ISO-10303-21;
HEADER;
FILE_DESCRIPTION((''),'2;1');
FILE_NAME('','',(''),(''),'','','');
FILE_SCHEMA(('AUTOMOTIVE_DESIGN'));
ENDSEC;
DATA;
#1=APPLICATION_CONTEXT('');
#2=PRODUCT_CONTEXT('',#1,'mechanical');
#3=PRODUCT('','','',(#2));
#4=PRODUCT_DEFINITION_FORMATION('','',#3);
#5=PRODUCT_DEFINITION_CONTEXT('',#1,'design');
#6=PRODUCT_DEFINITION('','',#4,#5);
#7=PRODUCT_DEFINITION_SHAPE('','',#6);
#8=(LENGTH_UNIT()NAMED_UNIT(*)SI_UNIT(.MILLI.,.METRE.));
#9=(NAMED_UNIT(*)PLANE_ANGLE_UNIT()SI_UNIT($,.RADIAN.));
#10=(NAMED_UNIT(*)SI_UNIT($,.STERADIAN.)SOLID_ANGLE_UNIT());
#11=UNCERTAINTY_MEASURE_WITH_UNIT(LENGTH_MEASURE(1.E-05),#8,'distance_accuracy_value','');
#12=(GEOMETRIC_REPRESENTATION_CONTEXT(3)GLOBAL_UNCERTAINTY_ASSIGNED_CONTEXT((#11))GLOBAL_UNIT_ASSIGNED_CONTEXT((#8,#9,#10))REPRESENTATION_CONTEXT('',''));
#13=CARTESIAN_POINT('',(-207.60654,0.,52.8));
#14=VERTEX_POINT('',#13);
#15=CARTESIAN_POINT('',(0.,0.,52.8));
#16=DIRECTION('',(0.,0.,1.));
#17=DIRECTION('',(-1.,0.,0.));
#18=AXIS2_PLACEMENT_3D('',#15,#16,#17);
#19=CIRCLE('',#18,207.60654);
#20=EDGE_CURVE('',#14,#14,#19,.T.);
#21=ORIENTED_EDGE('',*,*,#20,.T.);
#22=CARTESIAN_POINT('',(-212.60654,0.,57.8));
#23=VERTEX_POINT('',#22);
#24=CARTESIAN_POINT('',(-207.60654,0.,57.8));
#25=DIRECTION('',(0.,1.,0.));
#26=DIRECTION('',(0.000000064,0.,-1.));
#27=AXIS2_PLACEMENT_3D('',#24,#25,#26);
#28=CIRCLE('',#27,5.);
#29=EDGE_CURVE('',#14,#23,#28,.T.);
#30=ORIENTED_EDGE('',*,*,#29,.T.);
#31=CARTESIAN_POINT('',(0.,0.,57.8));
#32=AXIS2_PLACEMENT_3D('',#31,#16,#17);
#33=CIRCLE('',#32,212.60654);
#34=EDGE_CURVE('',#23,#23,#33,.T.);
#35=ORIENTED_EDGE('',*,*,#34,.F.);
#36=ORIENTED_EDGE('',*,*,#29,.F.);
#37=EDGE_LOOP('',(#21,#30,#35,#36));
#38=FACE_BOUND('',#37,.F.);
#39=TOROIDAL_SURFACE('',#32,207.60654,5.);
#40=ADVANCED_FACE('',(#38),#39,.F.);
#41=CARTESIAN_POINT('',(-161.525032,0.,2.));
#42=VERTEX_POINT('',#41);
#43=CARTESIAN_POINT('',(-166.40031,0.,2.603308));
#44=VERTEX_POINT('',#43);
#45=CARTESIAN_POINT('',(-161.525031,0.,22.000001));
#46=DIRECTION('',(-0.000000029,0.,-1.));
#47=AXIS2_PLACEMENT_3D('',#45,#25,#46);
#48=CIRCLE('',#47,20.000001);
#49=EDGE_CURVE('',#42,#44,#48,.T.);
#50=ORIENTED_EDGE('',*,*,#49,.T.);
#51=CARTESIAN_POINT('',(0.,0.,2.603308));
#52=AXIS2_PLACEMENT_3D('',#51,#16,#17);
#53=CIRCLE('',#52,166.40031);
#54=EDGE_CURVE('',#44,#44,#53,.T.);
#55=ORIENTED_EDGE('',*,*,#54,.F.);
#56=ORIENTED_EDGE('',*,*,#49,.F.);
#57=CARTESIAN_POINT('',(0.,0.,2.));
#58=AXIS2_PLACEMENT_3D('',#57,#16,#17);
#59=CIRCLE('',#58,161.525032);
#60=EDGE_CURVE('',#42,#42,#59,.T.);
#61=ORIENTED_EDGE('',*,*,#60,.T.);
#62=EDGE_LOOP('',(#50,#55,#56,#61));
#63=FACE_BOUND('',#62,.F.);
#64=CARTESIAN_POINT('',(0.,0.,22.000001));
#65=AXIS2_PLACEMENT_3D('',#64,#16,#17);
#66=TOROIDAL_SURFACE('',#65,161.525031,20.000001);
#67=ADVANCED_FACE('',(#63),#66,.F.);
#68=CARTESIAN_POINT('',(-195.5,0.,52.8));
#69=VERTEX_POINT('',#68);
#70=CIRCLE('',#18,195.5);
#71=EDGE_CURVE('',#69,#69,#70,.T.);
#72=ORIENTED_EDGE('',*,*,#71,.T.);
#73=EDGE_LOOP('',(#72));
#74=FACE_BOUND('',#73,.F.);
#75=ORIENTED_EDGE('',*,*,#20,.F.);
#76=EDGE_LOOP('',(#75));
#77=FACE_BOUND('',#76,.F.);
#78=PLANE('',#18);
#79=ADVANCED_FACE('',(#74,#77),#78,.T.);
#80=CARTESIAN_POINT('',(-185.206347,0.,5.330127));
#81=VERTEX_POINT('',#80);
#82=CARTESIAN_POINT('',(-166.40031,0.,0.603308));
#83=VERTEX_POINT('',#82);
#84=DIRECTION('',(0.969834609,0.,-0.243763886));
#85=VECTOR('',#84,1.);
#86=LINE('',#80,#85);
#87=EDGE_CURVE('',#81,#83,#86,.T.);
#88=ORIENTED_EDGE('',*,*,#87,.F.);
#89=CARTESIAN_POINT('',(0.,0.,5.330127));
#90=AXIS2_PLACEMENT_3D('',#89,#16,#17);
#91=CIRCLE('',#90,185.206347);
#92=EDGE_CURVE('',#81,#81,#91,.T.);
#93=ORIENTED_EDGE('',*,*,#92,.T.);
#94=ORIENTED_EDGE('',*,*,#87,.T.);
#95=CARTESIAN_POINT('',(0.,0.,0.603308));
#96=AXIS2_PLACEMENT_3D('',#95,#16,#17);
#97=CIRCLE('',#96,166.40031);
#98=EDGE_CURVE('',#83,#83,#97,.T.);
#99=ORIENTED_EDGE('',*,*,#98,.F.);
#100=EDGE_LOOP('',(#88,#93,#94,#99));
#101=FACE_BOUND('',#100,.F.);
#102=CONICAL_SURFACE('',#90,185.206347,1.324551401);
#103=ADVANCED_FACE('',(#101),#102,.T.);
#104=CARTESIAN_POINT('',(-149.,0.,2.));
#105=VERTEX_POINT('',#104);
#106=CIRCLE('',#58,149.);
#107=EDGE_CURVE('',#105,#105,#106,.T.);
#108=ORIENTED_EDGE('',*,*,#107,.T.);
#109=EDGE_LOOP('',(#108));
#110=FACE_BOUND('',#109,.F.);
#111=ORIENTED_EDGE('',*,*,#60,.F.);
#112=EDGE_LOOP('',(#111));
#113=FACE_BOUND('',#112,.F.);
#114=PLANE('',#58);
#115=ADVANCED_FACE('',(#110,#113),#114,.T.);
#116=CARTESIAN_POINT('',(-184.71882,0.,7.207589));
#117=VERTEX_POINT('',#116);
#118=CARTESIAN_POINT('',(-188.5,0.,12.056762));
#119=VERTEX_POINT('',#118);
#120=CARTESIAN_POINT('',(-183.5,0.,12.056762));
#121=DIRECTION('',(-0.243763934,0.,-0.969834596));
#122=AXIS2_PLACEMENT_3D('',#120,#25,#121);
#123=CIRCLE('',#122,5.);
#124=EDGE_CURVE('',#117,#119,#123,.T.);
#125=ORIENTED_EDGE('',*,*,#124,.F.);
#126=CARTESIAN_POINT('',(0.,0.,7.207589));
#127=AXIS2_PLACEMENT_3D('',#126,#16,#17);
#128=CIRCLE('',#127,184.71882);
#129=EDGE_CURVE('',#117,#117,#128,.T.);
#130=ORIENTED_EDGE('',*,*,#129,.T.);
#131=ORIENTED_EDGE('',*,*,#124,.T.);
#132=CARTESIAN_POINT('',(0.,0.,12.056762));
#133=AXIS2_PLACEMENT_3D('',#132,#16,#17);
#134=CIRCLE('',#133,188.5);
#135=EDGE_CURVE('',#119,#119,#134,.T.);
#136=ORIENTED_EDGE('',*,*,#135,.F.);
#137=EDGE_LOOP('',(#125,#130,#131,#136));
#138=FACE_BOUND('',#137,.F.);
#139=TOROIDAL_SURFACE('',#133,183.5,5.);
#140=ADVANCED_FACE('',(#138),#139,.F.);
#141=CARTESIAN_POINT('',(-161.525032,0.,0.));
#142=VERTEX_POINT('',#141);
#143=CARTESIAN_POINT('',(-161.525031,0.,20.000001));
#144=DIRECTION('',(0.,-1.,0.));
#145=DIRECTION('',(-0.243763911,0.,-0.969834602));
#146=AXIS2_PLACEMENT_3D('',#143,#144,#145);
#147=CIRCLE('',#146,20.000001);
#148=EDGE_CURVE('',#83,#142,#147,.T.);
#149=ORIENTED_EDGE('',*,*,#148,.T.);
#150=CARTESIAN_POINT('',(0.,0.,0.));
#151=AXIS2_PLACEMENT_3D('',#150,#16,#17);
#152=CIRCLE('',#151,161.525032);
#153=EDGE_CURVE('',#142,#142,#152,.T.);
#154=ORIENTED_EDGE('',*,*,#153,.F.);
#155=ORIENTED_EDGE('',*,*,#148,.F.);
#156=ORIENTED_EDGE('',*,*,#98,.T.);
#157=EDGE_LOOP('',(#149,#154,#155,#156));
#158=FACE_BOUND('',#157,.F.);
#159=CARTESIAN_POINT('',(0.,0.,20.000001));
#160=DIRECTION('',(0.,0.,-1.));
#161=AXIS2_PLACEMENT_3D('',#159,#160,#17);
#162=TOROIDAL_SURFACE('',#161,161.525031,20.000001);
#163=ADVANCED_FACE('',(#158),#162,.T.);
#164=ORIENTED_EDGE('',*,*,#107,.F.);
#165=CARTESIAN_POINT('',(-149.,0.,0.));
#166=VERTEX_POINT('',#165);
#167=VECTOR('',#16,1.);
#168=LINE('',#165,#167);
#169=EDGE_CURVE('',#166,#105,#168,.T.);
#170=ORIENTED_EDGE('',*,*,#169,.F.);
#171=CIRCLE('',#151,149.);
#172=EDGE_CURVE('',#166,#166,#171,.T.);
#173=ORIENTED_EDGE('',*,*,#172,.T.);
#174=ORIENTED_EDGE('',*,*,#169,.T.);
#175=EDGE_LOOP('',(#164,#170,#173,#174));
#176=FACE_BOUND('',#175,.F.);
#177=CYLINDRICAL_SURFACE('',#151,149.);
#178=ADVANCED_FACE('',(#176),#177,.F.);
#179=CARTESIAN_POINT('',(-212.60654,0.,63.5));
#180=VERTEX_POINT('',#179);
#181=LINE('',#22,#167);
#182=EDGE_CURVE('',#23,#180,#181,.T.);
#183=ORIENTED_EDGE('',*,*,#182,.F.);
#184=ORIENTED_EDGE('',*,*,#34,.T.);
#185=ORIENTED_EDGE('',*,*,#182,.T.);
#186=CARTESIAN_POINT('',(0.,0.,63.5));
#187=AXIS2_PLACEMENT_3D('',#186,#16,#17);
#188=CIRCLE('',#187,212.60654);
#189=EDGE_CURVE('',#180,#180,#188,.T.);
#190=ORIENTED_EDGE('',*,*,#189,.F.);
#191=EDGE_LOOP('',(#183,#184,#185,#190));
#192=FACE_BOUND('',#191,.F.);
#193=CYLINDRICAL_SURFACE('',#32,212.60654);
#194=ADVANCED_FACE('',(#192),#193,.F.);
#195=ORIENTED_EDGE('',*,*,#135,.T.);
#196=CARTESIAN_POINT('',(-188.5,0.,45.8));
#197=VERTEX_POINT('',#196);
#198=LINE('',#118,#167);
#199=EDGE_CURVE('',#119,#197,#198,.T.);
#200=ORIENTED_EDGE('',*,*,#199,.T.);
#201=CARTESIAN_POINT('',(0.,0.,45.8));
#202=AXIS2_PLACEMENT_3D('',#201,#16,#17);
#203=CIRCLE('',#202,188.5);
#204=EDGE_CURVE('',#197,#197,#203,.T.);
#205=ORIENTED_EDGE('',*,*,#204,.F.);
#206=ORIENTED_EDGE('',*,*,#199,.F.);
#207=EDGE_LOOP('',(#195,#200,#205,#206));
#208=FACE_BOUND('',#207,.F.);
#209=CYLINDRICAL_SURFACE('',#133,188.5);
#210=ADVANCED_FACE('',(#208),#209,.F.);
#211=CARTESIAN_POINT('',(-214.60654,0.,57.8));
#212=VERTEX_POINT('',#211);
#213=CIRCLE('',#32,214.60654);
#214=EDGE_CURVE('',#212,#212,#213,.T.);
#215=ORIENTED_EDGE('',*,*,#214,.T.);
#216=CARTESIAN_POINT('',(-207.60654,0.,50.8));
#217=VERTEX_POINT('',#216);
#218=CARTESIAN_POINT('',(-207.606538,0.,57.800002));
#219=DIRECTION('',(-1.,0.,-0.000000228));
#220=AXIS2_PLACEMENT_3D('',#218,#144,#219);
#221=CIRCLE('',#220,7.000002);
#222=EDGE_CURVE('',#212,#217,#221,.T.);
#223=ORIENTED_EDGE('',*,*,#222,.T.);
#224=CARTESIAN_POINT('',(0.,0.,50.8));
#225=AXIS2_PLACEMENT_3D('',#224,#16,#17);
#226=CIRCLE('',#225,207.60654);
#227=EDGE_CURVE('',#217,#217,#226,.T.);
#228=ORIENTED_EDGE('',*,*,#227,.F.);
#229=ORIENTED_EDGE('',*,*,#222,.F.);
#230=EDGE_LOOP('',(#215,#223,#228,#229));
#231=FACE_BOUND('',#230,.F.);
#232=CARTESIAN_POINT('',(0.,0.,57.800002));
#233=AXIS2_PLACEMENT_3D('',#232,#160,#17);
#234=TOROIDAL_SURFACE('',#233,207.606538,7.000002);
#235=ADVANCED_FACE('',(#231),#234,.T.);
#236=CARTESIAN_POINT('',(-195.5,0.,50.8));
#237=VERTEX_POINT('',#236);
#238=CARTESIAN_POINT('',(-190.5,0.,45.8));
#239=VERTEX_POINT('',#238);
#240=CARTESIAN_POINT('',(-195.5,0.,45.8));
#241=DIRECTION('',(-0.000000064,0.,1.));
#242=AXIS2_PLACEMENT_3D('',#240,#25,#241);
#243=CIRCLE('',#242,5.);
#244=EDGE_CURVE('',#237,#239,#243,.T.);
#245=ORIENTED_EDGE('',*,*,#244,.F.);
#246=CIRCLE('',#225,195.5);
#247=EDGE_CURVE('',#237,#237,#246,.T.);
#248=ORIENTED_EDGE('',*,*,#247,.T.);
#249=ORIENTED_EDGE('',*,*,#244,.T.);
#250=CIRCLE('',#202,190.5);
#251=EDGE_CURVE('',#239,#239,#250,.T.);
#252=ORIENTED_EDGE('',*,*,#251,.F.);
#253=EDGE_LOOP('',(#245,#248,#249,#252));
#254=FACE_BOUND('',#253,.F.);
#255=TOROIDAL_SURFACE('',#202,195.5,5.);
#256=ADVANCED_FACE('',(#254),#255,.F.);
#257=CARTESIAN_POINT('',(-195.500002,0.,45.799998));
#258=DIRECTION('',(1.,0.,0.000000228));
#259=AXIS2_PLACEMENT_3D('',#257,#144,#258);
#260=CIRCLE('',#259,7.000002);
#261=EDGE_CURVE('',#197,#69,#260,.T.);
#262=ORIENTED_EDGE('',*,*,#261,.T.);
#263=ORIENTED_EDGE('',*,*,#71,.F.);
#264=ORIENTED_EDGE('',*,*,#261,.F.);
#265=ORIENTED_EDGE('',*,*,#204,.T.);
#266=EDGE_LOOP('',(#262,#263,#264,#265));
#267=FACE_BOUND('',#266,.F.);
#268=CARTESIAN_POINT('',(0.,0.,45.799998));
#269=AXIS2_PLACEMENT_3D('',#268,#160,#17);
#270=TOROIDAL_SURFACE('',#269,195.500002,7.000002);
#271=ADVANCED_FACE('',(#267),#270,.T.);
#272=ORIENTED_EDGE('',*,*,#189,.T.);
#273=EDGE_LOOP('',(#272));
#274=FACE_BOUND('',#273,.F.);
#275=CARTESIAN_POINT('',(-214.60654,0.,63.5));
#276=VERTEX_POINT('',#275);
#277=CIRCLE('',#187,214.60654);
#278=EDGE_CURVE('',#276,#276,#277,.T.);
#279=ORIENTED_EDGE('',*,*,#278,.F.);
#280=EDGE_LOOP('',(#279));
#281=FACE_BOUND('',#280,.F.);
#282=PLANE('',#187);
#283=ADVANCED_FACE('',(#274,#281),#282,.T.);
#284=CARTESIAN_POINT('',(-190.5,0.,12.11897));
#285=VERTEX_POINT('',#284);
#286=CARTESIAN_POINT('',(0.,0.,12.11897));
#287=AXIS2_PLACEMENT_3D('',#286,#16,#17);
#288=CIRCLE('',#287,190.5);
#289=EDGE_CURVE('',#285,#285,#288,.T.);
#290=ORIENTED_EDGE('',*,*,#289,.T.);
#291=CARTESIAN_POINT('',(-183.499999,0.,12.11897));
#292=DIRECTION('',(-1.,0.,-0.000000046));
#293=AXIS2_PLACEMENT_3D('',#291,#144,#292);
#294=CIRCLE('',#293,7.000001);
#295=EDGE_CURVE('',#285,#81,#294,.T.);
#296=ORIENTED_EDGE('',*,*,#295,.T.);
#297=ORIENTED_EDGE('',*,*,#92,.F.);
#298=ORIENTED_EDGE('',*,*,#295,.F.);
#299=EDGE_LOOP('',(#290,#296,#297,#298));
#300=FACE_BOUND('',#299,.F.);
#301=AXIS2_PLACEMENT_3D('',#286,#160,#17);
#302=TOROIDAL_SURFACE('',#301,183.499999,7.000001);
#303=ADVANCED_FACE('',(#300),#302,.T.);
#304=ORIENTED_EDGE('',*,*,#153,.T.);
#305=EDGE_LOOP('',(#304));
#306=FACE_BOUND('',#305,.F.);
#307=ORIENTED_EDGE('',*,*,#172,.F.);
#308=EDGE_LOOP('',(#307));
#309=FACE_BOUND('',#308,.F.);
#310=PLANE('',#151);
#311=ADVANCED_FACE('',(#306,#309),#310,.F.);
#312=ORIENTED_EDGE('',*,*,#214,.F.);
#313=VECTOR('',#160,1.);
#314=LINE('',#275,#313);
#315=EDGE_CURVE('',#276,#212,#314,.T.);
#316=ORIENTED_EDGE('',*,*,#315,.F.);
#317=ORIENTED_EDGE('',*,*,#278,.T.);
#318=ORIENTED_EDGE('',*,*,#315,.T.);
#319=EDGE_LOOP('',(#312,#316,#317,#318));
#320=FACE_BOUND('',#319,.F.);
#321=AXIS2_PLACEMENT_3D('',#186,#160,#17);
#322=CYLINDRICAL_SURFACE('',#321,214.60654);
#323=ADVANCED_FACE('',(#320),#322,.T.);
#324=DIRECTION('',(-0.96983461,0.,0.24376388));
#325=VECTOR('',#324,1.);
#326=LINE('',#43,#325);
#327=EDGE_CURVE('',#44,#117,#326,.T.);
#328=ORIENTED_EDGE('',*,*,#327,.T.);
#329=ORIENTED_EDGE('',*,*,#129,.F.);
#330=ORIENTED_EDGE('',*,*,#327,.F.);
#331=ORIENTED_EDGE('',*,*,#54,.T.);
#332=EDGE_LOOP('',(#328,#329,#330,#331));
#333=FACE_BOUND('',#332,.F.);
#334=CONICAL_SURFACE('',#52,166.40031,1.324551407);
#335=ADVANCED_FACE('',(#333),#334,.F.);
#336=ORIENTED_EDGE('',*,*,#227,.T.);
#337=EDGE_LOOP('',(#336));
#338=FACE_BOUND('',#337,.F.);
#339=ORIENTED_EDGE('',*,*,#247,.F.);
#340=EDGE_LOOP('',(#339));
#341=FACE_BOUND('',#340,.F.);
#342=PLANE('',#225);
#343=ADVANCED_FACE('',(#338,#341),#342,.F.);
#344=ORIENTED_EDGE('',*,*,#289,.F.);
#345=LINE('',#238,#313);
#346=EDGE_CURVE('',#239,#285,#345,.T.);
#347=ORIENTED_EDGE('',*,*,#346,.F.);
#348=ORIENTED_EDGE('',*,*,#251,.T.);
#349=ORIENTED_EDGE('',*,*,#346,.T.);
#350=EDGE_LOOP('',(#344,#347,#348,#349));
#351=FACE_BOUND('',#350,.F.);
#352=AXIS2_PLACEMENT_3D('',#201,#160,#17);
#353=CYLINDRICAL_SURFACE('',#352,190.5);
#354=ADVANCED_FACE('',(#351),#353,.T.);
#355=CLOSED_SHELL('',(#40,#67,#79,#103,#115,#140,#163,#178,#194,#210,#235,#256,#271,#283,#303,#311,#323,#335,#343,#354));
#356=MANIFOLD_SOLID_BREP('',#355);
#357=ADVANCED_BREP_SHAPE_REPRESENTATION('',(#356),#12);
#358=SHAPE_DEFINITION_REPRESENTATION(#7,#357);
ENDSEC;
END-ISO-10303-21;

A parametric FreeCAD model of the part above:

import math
import FreeCAD as App
import Part
import Sketcher
from FreeCAD import Vector
Q = App.Units.Quantity

doc = App.newDocument("Part")
params = doc.addObject("Spreadsheet::Sheet", "Params")
for row, (alias, value) in enumerate([
    ("sketch1_radius", "20.000001 mm"),
    ("sketch1_radius2", "5 mm"),
    ("sketch1_radius3", "7.000002 mm"),
    ("sketch1_height", "5.7 mm"),
    ("revolution_angle", "360 deg"),
], start=1):
    params.set(f"A{row}", alias)
    params.set(f"B{row}", "=" + value)
    params.setAlias(f"B{row}", alias)

body = doc.addObject("PartDesign::Body", "Body")

sketch1 = doc.addObject("Sketcher::SketchObject", "Sketch")
body.addObject(sketch1)
sketch1.AttachmentSupport = (doc.XZ_Plane, [""])
sketch1.MapMode = "FlatFace"
sketch1.addGeometry([
    Part.LineSegment(Vector(-161.525032, 0, 0), Vector(-149, 0, 0)),
    Part.LineSegment(Vector(-149, 0, 0), Vector(-149, 2, 0)),
    Part.LineSegment(Vector(-149, 2, 0), Vector(-161.525032, 2, 0)),
    Part.ArcOfCircle(Part.Circle(Vector(-161.525031, 22.000001, 0), Vector(0, 0, 1), 20.000001), math.radians(-104.108796), math.radians(-90.000002)),
    Part.LineSegment(Vector(-166.40031, 2.603308, 0), Vector(-184.71882, 7.207589, 0)),
    Part.ArcOfCircle(Part.Circle(Vector(-183.5, 12.056762, 0), Vector(0, 0, 1), 5), math.radians(179.999995), math.radians(255.891202)),
    Part.LineSegment(Vector(-188.5, 12.056762, 0), Vector(-188.5, 45.8, 0)),
    Part.ArcOfCircle(Part.Circle(Vector(-195.500002, 45.799998, 0), Vector(0, 0, 1), 7.000002), math.radians(0.000013), math.radians(89.999987)),
    Part.LineSegment(Vector(-195.5, 52.8, 0), Vector(-207.60654, 52.8, 0)),
    Part.ArcOfCircle(Part.Circle(Vector(-207.60654, 57.8, 0), Vector(0, 0, 1), 5), math.radians(179.999996), math.radians(270.000004)),
    Part.LineSegment(Vector(-212.60654, 57.8, 0), Vector(-212.60654, 63.5, 0)),
    Part.LineSegment(Vector(-212.60654, 63.5, 0), Vector(-214.60654, 63.5, 0)),
    Part.LineSegment(Vector(-214.60654, 63.5, 0), Vector(-214.60654, 57.8, 0)),
    Part.ArcOfCircle(Part.Circle(Vector(-207.606538, 57.800002, 0), Vector(0, 0, 1), 7.000002), math.radians(-179.999987), math.radians(-90.000013)),
    Part.LineSegment(Vector(-207.60654, 50.8, 0), Vector(-195.5, 50.8, 0)),
    Part.ArcOfCircle(Part.Circle(Vector(-195.5, 45.8, 0), Vector(0, 0, 1), 5), math.radians(-0.000004), math.radians(90.000004)),
    Part.LineSegment(Vector(-190.5, 45.8, 0), Vector(-190.5, 12.11897, 0)),
    Part.ArcOfCircle(Part.Circle(Vector(-183.499999, 12.11897, 0), Vector(0, 0, 1), 7.000001), math.radians(-179.999997), math.radians(-104.108802)),
    Part.LineSegment(Vector(-185.206347, 5.330127, 0), Vector(-166.40031, 0.603308, 0)),
    Part.ArcOfCircle(Part.Circle(Vector(-161.525031, 20.000001, 0), Vector(0, 0, 1), 20.000001), math.radians(-104.108796), math.radians(-90.000002)),
], False)
sketch1.addConstraint([
    Sketcher.Constraint("Coincident", 0, 2, 1, 1),
    Sketcher.Constraint("Coincident", 1, 2, 2, 1),
    Sketcher.Constraint("Tangent", 2, 2, 3, 2),
    Sketcher.Constraint("Tangent", 3, 1, 4, 1),
    Sketcher.Constraint("Tangent", 4, 2, 5, 2),
    Sketcher.Constraint("Tangent", 5, 1, 6, 1),
    Sketcher.Constraint("Tangent", 6, 2, 7, 1),
    Sketcher.Constraint("Tangent", 7, 2, 8, 1),
    Sketcher.Constraint("Tangent", 8, 2, 9, 2),
    Sketcher.Constraint("Tangent", 9, 1, 10, 1),
    Sketcher.Constraint("Coincident", 10, 2, 11, 1),
    Sketcher.Constraint("Coincident", 11, 2, 12, 1),
    Sketcher.Constraint("Tangent", 12, 2, 13, 1),
    Sketcher.Constraint("Tangent", 13, 2, 14, 1),
    Sketcher.Constraint("Tangent", 14, 2, 15, 2),
    Sketcher.Constraint("Tangent", 15, 1, 16, 1),
    Sketcher.Constraint("Tangent", 16, 2, 17, 1),
    Sketcher.Constraint("Tangent", 17, 2, 18, 1),
    Sketcher.Constraint("Tangent", 18, 2, 19, 1),
    Sketcher.Constraint("Tangent", 19, 2, 0, 1),
    Sketcher.Constraint("Horizontal", 0),
    Sketcher.Constraint("Vertical", 1),
    Sketcher.Constraint("Horizontal", 2),
    Sketcher.Constraint("Vertical", 6),
    Sketcher.Constraint("Horizontal", 8),
    Sketcher.Constraint("Vertical", 10),
    Sketcher.Constraint("Horizontal", 11),
    Sketcher.Constraint("Vertical", 12),
    Sketcher.Constraint("Horizontal", 14),
    Sketcher.Constraint("Vertical", 16),
    Sketcher.Constraint("Coincident", 13, 3, 9, 3),
    Sketcher.Constraint("Coincident", 15, 3, 7, 3),
    Sketcher.Constraint("Equal", 5, 9),
    Sketcher.Constraint("Equal", 7, 13),
    Sketcher.Constraint("Equal", 13, 17),
    Sketcher.Constraint("Equal", 3, 19),
    Sketcher.Constraint("PointOnObject", 0, 2, -1),
    Sketcher.Constraint("Parallel", 4, 18),
    Sketcher.Constraint("Vertical", 3, 3, 19, 3),
    Sketcher.Constraint("Equal", 11, 1),
    Sketcher.Constraint("Radius", 3, Q("20.000001 mm")),
    Sketcher.Constraint("Radius", 5, Q("5 mm")),
    Sketcher.Constraint("Radius", 7, Q("7.000002 mm")),
    Sketcher.Constraint("DistanceY", 10, 1, 10, 2, Q("5.7 mm")),
    Sketcher.Constraint("DistanceX", 0, 2, -1, 1, Q("149 mm")),
    Sketcher.Constraint("DistanceX", 5, 3, -1, 1, Q("183.5 mm")),
    Sketcher.Constraint("DistanceY", -1, 1, 7, 3, Q("45.799998 mm")),
    Sketcher.Constraint("DistanceX", 8, 2, 8, 1, Q("12.10654 mm")),
    Sketcher.Constraint("DistanceY", 16, 2, 16, 1, Q("33.68103 mm")),
    Sketcher.Constraint("DistanceX", 0, 1, 0, 2, Q("12.525032 mm")),
])
sketch1.setExpression("Constraints[40]", "Params.sketch1_radius")
sketch1.setExpression("Constraints[41]", "Params.sketch1_radius2")
sketch1.setExpression("Constraints[42]", "Params.sketch1_radius3")
sketch1.setExpression("Constraints[43]", "Params.sketch1_height")
revolution = doc.addObject("PartDesign::Revolution", "Revolution")
body.addObject(revolution)
revolution.Profile = sketch1
revolution.ReferenceAxis = (sketch1, ["V_Axis"])
revolution.setExpression("Angle", "Params.revolution_angle")

doc.recompute()
